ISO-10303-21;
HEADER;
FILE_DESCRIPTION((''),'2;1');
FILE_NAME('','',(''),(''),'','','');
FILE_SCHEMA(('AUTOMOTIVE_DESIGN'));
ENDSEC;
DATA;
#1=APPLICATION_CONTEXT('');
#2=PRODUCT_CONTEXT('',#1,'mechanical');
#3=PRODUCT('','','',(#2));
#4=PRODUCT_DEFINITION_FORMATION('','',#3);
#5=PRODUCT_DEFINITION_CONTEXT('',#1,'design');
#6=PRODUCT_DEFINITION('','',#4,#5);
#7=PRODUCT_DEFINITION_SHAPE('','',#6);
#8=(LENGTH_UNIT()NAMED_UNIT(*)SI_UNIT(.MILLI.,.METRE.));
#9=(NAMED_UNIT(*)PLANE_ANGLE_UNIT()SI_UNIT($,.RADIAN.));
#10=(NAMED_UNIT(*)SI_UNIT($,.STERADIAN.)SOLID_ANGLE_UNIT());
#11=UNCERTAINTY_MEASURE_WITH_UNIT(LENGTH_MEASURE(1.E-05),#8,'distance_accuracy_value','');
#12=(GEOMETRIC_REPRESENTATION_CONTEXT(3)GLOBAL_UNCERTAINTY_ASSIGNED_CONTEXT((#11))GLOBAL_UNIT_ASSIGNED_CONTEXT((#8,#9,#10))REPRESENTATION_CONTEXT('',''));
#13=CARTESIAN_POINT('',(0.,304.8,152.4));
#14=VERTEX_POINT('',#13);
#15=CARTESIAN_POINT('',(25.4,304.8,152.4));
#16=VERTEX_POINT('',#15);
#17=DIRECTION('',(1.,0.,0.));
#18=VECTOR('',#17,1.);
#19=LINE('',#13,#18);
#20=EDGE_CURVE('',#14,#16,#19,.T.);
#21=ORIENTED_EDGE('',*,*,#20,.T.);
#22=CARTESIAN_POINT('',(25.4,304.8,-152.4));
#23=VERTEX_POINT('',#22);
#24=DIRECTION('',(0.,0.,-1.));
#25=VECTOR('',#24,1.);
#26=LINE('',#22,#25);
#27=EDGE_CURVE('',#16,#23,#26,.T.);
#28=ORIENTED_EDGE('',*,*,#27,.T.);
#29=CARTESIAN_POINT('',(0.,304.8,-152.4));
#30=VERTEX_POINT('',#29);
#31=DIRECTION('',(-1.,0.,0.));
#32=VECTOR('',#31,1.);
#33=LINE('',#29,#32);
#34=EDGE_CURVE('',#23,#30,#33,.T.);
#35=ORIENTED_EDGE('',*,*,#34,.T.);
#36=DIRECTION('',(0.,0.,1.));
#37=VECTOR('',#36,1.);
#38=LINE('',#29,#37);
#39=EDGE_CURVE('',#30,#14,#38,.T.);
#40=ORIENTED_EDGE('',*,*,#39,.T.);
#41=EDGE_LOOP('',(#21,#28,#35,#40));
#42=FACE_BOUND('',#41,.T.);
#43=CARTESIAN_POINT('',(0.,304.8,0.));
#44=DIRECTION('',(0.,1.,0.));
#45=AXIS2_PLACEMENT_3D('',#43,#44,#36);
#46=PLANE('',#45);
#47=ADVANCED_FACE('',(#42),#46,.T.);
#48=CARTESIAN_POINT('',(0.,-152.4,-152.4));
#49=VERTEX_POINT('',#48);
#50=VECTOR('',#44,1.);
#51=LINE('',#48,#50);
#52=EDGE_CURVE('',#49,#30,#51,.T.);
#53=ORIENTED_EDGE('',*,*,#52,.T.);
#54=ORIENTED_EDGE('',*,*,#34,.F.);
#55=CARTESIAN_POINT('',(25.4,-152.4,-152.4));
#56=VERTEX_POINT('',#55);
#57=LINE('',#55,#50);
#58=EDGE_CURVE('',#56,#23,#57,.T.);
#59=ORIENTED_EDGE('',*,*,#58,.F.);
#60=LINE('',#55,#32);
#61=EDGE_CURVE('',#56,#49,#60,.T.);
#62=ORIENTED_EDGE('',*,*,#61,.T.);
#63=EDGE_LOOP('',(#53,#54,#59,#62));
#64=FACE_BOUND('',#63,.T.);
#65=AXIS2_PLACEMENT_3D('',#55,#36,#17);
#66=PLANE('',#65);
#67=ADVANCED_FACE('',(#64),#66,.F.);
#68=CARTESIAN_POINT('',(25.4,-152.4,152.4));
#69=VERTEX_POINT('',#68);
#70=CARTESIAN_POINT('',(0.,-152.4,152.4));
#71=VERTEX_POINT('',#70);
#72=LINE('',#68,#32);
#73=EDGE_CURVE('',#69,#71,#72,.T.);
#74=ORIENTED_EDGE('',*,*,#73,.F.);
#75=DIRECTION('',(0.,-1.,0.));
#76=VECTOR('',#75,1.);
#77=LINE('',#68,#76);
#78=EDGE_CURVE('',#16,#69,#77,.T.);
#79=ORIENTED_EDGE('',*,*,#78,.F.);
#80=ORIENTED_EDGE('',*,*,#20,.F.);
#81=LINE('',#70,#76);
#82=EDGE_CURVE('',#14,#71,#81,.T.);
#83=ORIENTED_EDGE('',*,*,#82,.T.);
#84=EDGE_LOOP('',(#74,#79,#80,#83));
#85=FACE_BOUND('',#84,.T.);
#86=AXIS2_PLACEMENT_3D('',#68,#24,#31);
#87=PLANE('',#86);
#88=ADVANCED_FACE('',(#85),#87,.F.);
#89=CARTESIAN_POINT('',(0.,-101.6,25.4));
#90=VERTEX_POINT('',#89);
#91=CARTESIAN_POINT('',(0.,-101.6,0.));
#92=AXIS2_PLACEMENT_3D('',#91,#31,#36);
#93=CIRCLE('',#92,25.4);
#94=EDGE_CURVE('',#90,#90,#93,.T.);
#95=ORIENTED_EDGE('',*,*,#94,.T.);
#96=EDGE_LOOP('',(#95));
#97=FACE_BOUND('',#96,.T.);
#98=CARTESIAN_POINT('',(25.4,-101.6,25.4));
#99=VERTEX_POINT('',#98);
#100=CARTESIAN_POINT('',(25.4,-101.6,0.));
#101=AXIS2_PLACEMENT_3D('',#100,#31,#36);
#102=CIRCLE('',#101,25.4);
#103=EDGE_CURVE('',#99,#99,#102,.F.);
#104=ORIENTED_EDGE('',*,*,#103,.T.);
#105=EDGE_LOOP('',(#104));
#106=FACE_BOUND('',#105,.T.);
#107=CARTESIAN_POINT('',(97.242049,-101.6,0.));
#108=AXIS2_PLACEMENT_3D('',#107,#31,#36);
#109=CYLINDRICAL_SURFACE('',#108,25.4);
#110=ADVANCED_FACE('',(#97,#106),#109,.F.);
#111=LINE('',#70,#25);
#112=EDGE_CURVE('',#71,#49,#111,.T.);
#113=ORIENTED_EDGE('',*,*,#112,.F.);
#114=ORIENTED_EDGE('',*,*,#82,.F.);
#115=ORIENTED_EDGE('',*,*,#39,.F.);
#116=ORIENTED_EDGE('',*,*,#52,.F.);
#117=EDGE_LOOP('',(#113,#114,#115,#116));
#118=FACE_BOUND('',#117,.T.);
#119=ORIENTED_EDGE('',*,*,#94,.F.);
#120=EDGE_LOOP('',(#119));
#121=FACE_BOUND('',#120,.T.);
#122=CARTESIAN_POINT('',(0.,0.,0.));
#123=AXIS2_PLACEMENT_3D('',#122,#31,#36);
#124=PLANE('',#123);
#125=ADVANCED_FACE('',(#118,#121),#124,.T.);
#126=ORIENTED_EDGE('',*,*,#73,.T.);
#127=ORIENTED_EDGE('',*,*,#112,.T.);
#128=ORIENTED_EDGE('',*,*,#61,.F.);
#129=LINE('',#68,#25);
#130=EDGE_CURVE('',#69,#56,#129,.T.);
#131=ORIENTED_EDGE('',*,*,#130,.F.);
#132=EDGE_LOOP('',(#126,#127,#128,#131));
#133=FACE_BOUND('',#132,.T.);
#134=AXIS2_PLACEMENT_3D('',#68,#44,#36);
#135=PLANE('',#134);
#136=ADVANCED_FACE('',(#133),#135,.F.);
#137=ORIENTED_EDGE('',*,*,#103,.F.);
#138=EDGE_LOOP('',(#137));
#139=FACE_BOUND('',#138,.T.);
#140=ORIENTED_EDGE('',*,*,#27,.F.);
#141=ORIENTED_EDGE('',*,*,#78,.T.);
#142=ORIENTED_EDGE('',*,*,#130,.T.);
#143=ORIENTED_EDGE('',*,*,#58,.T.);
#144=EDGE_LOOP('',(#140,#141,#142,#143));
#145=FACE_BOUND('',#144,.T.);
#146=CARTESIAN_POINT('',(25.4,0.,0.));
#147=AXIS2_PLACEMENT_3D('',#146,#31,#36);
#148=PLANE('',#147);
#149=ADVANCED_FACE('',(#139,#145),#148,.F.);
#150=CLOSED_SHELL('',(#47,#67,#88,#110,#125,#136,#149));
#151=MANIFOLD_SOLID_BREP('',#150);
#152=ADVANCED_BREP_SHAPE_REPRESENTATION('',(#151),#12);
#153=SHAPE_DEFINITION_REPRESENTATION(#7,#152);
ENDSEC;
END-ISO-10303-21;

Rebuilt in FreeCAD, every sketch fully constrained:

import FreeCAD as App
import Part
import Sketcher
Q = App.Units.Quantity


def add_polygon(sketch, points):
    """Adds a closed chain of lines whose ends are joined by coincident constraints."""
    first, n = sketch.GeometryCount, len(points)
    for a, b in zip(points, points[1:] + points[:1]):
        sketch.addGeometry(Part.LineSegment(App.Vector(*a, 0), App.Vector(*b, 0)), False)
    for i in range(n):
        sketch.addConstraint(Sketcher.Constraint("Coincident", first + i, 2, first + (i + 1) % n, 1))

doc = App.newDocument("Part")
body = doc.addObject("PartDesign::Body", "Body")

# Sketch on YZ plane
sketch1 = doc.addObject("Sketcher::SketchObject", "Sketch")
body.addObject(sketch1)
sketch1.AttachmentSupport = (doc.YZ_Plane, [""])
sketch1.MapMode = "FlatFace"
add_polygon(sketch1, [(152, 152), (-152, 152), (-152, -152), (152, -152)])  # lines 0-3
sketch1.addConstraint([
    Sketcher.Constraint("Horizontal", 0),
    Sketcher.Constraint("Vertical", 1),
    Sketcher.Constraint("Horizontal", 2),
    Sketcher.Constraint("Vertical", 3),
    Sketcher.Constraint("Symmetric", 0, 2, 2, 2, -1, 1),
    Sketcher.Constraint("Equal", 2, 1),
    Sketcher.Constraint("DistanceX", 0, 2, 0, 1, Q("12 in")),
])
pad1 = doc.addObject("PartDesign::Pad", "Pad")
body.addObject(pad1)
pad1.Profile = sketch1
pad1.Length = Q("1 in")

# Sketch on YZ plane
sketch2 = doc.addObject("Sketcher::SketchObject", "Sketch001")
body.addObject(sketch2)
sketch2.AttachmentSupport = (doc.YZ_Plane, [""])
sketch2.MapMode = "FlatFace"
sketch2.addGeometry(Part.Circle(App.Vector(-102, 0, 0), App.Vector(0, 0, 1), 25), False)
sketch2.addConstraint([
    Sketcher.Constraint("PointOnObject", 0, 3, -1),
    Sketcher.Constraint("Diameter", 0, Q("2 in")),
    Sketcher.Constraint("DistanceX", 0, 3, -1, 1, Q("4 in")),
])
pocket1 = doc.addObject("PartDesign::Pocket", "Pocket")
body.addObject(pocket1)
pocket1.Profile = sketch2
pocket1.Length = Q("1 in")
pocket1.Reversed = True

# Sketch on XZ plane
sketch3 = doc.addObject("Sketcher::SketchObject", "Sketch002")
body.addObject(sketch3)
sketch3.AttachmentSupport = (doc.XZ_Plane, [""])
sketch3.MapMode = "FlatFace"
sketch3.AttachmentOffset = App.Placement(App.Vector(0, 0, -6 * 25.4), App.Rotation())
add_polygon(sketch3, [(0, -152), (0, 152), (25, 152), (25, -152)])  # lines 0-3
sketch3.addConstraint([
    Sketcher.Constraint("Vertical", 0),
    Sketcher.Constraint("Horizontal", 1),
    Sketcher.Constraint("Vertical", 2),
    Sketcher.Constraint("Horizontal", 3),
    Sketcher.Constraint("Symmetric", 0, 2, 3, 2, -1, 1),
    Sketcher.Constraint("DistanceX", 1, 1, 1, 2, Q("1 in")),
    Sketcher.Constraint("DistanceY", 0, 1, 0, 2, Q("12 in")),
])
pad2 = doc.addObject("PartDesign::Pad", "Pad001")
body.addObject(pad2)
pad2.Profile = sketch3
pad2.Length = Q("6 in")
pad2.Reversed = True

doc.recompute()
